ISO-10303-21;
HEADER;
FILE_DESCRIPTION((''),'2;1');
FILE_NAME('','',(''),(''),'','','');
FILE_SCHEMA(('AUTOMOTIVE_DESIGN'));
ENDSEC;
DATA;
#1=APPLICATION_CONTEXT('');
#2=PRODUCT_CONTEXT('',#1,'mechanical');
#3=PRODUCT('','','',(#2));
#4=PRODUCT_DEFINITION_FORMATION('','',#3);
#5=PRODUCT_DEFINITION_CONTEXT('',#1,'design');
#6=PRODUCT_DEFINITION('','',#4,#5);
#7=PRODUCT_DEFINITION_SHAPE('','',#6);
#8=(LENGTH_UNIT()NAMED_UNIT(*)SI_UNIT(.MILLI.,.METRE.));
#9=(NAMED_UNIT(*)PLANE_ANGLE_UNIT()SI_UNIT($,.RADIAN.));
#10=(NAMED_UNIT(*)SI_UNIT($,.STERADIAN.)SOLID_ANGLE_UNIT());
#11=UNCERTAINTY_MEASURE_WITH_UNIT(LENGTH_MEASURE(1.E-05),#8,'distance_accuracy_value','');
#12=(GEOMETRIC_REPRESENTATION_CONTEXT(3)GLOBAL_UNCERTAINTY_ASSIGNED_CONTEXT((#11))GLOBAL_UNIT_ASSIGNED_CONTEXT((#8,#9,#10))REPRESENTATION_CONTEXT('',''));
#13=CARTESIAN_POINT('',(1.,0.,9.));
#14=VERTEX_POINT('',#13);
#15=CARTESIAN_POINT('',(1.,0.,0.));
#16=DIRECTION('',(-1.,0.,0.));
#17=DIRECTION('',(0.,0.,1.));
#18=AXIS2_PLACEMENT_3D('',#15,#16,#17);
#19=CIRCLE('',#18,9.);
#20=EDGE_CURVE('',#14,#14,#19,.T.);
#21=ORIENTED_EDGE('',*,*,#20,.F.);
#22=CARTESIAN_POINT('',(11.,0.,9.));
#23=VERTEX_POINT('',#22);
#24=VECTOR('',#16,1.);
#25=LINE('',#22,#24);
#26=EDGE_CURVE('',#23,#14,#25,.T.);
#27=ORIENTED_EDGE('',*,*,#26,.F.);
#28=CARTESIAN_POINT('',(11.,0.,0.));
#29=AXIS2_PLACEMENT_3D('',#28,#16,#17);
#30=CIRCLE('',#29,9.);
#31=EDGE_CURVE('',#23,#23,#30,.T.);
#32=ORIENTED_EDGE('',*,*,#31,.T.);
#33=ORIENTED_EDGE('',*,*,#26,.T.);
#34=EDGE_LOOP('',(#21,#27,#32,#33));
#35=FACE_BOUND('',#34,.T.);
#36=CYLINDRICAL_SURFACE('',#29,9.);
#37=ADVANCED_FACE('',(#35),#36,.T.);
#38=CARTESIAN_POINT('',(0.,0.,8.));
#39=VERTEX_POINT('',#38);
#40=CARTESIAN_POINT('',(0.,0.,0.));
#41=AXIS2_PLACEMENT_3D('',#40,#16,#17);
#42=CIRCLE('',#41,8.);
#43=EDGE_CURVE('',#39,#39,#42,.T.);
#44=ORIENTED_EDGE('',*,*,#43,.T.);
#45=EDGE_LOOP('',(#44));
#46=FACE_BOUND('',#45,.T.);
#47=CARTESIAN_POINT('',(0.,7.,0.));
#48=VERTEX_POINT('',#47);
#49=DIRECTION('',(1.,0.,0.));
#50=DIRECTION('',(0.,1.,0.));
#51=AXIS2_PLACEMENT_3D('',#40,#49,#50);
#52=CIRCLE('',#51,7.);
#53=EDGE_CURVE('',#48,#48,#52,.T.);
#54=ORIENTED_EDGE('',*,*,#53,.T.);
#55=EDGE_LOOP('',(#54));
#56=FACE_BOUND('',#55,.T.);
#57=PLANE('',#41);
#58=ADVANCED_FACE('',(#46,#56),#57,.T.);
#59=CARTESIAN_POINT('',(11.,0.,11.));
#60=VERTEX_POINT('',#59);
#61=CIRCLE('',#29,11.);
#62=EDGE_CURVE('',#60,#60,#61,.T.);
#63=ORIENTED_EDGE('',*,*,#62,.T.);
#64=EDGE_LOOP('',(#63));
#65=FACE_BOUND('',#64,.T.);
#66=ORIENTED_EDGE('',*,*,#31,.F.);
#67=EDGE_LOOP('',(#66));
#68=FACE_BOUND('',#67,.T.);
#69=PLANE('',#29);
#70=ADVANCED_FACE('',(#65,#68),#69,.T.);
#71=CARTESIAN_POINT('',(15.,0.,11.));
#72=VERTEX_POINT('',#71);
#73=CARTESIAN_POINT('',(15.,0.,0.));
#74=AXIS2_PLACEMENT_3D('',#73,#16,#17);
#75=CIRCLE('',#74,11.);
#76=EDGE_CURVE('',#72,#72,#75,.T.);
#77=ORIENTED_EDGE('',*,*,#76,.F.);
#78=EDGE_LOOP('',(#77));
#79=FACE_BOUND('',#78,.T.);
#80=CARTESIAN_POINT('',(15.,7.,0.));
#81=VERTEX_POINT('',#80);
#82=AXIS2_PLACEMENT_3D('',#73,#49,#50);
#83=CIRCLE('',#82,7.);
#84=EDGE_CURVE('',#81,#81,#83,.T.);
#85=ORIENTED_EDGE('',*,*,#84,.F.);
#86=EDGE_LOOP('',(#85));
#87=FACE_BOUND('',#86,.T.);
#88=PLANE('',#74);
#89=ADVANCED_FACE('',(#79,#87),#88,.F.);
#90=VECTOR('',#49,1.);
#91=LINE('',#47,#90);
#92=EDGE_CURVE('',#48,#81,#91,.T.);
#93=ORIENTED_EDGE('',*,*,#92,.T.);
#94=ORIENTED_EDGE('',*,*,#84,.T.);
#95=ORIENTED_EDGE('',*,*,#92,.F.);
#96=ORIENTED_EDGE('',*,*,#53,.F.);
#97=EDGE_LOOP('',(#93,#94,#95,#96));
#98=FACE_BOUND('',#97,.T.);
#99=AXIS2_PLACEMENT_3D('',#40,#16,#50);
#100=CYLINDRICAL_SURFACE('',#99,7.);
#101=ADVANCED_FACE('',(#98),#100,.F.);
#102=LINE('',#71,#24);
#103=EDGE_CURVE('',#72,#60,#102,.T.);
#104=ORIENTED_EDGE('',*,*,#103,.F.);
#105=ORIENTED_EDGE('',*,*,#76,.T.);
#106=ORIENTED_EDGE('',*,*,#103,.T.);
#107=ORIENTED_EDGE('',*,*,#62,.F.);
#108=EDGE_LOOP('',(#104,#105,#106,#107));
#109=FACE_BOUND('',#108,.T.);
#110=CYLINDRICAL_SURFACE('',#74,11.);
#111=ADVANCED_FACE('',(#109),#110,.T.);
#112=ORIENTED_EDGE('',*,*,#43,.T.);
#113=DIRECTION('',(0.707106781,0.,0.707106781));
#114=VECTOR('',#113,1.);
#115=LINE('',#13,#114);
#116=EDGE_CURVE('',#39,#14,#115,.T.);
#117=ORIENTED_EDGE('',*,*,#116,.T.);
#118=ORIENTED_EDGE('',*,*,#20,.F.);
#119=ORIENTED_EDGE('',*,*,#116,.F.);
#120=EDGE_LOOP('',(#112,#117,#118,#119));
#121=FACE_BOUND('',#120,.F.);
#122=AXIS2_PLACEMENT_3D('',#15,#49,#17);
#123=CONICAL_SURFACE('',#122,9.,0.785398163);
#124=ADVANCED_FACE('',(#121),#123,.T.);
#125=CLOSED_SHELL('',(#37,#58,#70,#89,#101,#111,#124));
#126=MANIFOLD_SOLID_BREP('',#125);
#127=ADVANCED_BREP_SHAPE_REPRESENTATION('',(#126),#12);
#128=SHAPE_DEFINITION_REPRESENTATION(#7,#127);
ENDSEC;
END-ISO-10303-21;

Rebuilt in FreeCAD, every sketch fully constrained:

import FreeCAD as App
import Part
import Sketcher


def edges_at(feature, points):
    """Names of the edges that pass closest to the given points."""
    edges = feature.Shape.Edges
    near = lambda p: min(range(len(edges)), key=lambda i: edges[i].distToShape(Part.Vertex(*p))[0])
    return sorted({f"Edge{near(p) + 1}" for p in points})

doc = App.newDocument("Part")
params = doc.addObject("Spreadsheet::Sheet", "Params")
for row, (alias, value) in enumerate([
    ("sketch1_width", "15 mm"),
    ("sketch1_width2", "4 mm"),
    ("sketch1_height", "9 mm"),
    ("revolution_angle", "360 deg"),
    ("sketch2_diameter", "14 mm"),
    ("pocket1_length", "15 mm"),
    ("chamfer_size", "1 mm"),
], start=1):
    params.set(f"A{row}", alias)
    params.set(f"B{row}", "=" + value)
    params.setAlias(f"B{row}", alias)

body = doc.addObject("PartDesign::Body", "Body")

# Sketch on XZ plane
sketch1 = doc.addObject("Sketcher::SketchObject", "Sketch")
body.addObject(sketch1)
sketch1.AttachmentSupport = (doc.XZ_Plane, [""])
sketch1.MapMode = "FlatFace"
sketch1.addGeometry([
    Part.LineSegment(App.Vector(0, 9, 0), App.Vector(0, 0, 0)),  # 0
    Part.LineSegment(App.Vector(0, 0, 0), App.Vector(15, 0, 0)),  # 1
    Part.LineSegment(App.Vector(15, 0, 0), App.Vector(15, 11, 0)),  # 2
    Part.LineSegment(App.Vector(15, 11, 0), App.Vector(11, 11, 0)),  # 3
    Part.LineSegment(App.Vector(11, 11, 0), App.Vector(11, 9, 0)),  # 4
    Part.LineSegment(App.Vector(11, 9, 0), App.Vector(0, 9, 0)),  # 5
], False)
sketch1.addConstraint([
    Sketcher.Constraint("Coincident", 0, 2, 1, 1),
    Sketcher.Constraint("Coincident", 1, 2, 2, 1),
    Sketcher.Constraint("Coincident", 2, 2, 3, 1),
    Sketcher.Constraint("Coincident", 3, 2, 4, 1),
    Sketcher.Constraint("Coincident", 4, 2, 5, 1),
    Sketcher.Constraint("Coincident", 5, 2, 0, 1),
    Sketcher.Constraint("Vertical", 0),
    Sketcher.Constraint("Horizontal", 1),
    Sketcher.Constraint("Vertical", 2),
    Sketcher.Constraint("Horizontal", 3),
    Sketcher.Constraint("Vertical", 4),
    Sketcher.Constraint("Horizontal", 5),
    Sketcher.Constraint("Coincident", 0, 2, -1, 1),
    Sketcher.Constraint("Equal", 5, 2),
    Sketcher.Constraint("DistanceX", 1, 1, 1, 2, 15.0),
    Sketcher.Constraint("DistanceX", 3, 2, 3, 1, 4.0),
    Sketcher.Constraint("DistanceY", 0, 2, 0, 1, 9.0),
])
sketch1.setExpression("Constraints[14]", "Params.sketch1_width")
sketch1.setExpression("Constraints[15]", "Params.sketch1_width2")
sketch1.setExpression("Constraints[16]", "Params.sketch1_height")
revolution = doc.addObject("PartDesign::Revolution", "Revolution")
body.addObject(revolution)
revolution.Profile = sketch1
revolution.ReferenceAxis = (sketch1, ["H_Axis"])
revolution.setExpression("Angle", "Params.revolution_angle")

# Sketch on YZ plane
sketch2 = doc.addObject("Sketcher::SketchObject", "Sketch001")
body.addObject(sketch2)
sketch2.AttachmentSupport = (doc.YZ_Plane, [""])
sketch2.MapMode = "FlatFace"
sketch2.addGeometry(Part.Circle(App.Vector(0, 0, 0), App.Vector(0, 0, 1), 7), False)
sketch2.addConstraint([
    Sketcher.Constraint("Coincident", 0, 3, -1, 1),
    Sketcher.Constraint("Diameter", 0, 14.0),
])
sketch2.setExpression("Constraints[1]", "Params.sketch2_diameter")
pocket1 = doc.addObject("PartDesign::Pocket", "Pocket")
body.addObject(pocket1)
pocket1.Profile = sketch2
pocket1.setExpression("Length", "Params.pocket1_length")
pocket1.Reversed = True
doc.recompute()

chamfer = doc.addObject("PartDesign::Chamfer", "Chamfer")
body.addObject(chamfer)
chamfer.Base = (pocket1, edges_at(pocket1, [(0, 0, -9)]))
chamfer.setExpression("Size", "Params.chamfer_size")

doc.recompute()
